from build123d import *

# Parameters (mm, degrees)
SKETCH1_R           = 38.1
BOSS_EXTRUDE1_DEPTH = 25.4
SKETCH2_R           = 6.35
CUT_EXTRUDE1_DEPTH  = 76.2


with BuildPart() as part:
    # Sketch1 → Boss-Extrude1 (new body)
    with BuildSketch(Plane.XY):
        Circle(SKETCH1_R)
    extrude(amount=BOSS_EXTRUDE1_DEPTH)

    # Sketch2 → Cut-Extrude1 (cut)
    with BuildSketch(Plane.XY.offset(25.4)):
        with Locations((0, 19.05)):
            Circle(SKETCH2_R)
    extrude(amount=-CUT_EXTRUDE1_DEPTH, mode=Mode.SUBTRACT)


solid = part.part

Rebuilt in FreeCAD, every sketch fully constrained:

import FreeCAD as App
import Part
import Sketcher
from FreeCAD import Vector
Q = App.Units.Quantity

doc = App.newDocument("Part")
body = doc.addObject("PartDesign::Body", "Body")

sketch1 = body.newObject("Sketcher::SketchObject", "Sketch")
sketch1.AttachmentSupport = (doc.getObject("XY_Plane"), [""])
sketch1.MapMode = "FlatFace"
sketch1.addGeometry(Part.Circle(Vector(0, 0, 0), Vector(0, 0, 1), 38), False)
sketch1.addConstraint([
    Sketcher.Constraint("Coincident", 0, 3, -1, 1),
    Sketcher.Constraint("Diameter", 0, Q("3 in")),
])
pad1 = body.newObject("PartDesign::Pad", "Pad")
pad1.Profile = sketch1
pad1.Length = Q("1 in")

sketch2 = body.newObject("Sketcher::SketchObject", "Sketch001")
sketch2.AttachmentSupport = (doc.getObject("XY_Plane"), [""])
sketch2.MapMode = "FlatFace"
sketch2.AttachmentOffset = App.Placement(Vector(0, 0, 1 * 25.4), App.Rotation())
sketch2.addGeometry(Part.Circle(Vector(0, 19, 0), Vector(0, 0, 1), 6), False)
sketch2.addConstraint([
    Sketcher.Constraint("PointOnObject", 0, 3, -2),
    Sketcher.Constraint("Diameter", 0, Q("0.5 in")),
    Sketcher.Constraint("DistanceY", -1, 1, 0, 3, Q("0.75 in")),
])
pocket1 = body.newObject("PartDesign::Pocket", "Pocket")
pocket1.Profile = sketch2
pocket1.Length = Q("3 in")

doc.recompute()
